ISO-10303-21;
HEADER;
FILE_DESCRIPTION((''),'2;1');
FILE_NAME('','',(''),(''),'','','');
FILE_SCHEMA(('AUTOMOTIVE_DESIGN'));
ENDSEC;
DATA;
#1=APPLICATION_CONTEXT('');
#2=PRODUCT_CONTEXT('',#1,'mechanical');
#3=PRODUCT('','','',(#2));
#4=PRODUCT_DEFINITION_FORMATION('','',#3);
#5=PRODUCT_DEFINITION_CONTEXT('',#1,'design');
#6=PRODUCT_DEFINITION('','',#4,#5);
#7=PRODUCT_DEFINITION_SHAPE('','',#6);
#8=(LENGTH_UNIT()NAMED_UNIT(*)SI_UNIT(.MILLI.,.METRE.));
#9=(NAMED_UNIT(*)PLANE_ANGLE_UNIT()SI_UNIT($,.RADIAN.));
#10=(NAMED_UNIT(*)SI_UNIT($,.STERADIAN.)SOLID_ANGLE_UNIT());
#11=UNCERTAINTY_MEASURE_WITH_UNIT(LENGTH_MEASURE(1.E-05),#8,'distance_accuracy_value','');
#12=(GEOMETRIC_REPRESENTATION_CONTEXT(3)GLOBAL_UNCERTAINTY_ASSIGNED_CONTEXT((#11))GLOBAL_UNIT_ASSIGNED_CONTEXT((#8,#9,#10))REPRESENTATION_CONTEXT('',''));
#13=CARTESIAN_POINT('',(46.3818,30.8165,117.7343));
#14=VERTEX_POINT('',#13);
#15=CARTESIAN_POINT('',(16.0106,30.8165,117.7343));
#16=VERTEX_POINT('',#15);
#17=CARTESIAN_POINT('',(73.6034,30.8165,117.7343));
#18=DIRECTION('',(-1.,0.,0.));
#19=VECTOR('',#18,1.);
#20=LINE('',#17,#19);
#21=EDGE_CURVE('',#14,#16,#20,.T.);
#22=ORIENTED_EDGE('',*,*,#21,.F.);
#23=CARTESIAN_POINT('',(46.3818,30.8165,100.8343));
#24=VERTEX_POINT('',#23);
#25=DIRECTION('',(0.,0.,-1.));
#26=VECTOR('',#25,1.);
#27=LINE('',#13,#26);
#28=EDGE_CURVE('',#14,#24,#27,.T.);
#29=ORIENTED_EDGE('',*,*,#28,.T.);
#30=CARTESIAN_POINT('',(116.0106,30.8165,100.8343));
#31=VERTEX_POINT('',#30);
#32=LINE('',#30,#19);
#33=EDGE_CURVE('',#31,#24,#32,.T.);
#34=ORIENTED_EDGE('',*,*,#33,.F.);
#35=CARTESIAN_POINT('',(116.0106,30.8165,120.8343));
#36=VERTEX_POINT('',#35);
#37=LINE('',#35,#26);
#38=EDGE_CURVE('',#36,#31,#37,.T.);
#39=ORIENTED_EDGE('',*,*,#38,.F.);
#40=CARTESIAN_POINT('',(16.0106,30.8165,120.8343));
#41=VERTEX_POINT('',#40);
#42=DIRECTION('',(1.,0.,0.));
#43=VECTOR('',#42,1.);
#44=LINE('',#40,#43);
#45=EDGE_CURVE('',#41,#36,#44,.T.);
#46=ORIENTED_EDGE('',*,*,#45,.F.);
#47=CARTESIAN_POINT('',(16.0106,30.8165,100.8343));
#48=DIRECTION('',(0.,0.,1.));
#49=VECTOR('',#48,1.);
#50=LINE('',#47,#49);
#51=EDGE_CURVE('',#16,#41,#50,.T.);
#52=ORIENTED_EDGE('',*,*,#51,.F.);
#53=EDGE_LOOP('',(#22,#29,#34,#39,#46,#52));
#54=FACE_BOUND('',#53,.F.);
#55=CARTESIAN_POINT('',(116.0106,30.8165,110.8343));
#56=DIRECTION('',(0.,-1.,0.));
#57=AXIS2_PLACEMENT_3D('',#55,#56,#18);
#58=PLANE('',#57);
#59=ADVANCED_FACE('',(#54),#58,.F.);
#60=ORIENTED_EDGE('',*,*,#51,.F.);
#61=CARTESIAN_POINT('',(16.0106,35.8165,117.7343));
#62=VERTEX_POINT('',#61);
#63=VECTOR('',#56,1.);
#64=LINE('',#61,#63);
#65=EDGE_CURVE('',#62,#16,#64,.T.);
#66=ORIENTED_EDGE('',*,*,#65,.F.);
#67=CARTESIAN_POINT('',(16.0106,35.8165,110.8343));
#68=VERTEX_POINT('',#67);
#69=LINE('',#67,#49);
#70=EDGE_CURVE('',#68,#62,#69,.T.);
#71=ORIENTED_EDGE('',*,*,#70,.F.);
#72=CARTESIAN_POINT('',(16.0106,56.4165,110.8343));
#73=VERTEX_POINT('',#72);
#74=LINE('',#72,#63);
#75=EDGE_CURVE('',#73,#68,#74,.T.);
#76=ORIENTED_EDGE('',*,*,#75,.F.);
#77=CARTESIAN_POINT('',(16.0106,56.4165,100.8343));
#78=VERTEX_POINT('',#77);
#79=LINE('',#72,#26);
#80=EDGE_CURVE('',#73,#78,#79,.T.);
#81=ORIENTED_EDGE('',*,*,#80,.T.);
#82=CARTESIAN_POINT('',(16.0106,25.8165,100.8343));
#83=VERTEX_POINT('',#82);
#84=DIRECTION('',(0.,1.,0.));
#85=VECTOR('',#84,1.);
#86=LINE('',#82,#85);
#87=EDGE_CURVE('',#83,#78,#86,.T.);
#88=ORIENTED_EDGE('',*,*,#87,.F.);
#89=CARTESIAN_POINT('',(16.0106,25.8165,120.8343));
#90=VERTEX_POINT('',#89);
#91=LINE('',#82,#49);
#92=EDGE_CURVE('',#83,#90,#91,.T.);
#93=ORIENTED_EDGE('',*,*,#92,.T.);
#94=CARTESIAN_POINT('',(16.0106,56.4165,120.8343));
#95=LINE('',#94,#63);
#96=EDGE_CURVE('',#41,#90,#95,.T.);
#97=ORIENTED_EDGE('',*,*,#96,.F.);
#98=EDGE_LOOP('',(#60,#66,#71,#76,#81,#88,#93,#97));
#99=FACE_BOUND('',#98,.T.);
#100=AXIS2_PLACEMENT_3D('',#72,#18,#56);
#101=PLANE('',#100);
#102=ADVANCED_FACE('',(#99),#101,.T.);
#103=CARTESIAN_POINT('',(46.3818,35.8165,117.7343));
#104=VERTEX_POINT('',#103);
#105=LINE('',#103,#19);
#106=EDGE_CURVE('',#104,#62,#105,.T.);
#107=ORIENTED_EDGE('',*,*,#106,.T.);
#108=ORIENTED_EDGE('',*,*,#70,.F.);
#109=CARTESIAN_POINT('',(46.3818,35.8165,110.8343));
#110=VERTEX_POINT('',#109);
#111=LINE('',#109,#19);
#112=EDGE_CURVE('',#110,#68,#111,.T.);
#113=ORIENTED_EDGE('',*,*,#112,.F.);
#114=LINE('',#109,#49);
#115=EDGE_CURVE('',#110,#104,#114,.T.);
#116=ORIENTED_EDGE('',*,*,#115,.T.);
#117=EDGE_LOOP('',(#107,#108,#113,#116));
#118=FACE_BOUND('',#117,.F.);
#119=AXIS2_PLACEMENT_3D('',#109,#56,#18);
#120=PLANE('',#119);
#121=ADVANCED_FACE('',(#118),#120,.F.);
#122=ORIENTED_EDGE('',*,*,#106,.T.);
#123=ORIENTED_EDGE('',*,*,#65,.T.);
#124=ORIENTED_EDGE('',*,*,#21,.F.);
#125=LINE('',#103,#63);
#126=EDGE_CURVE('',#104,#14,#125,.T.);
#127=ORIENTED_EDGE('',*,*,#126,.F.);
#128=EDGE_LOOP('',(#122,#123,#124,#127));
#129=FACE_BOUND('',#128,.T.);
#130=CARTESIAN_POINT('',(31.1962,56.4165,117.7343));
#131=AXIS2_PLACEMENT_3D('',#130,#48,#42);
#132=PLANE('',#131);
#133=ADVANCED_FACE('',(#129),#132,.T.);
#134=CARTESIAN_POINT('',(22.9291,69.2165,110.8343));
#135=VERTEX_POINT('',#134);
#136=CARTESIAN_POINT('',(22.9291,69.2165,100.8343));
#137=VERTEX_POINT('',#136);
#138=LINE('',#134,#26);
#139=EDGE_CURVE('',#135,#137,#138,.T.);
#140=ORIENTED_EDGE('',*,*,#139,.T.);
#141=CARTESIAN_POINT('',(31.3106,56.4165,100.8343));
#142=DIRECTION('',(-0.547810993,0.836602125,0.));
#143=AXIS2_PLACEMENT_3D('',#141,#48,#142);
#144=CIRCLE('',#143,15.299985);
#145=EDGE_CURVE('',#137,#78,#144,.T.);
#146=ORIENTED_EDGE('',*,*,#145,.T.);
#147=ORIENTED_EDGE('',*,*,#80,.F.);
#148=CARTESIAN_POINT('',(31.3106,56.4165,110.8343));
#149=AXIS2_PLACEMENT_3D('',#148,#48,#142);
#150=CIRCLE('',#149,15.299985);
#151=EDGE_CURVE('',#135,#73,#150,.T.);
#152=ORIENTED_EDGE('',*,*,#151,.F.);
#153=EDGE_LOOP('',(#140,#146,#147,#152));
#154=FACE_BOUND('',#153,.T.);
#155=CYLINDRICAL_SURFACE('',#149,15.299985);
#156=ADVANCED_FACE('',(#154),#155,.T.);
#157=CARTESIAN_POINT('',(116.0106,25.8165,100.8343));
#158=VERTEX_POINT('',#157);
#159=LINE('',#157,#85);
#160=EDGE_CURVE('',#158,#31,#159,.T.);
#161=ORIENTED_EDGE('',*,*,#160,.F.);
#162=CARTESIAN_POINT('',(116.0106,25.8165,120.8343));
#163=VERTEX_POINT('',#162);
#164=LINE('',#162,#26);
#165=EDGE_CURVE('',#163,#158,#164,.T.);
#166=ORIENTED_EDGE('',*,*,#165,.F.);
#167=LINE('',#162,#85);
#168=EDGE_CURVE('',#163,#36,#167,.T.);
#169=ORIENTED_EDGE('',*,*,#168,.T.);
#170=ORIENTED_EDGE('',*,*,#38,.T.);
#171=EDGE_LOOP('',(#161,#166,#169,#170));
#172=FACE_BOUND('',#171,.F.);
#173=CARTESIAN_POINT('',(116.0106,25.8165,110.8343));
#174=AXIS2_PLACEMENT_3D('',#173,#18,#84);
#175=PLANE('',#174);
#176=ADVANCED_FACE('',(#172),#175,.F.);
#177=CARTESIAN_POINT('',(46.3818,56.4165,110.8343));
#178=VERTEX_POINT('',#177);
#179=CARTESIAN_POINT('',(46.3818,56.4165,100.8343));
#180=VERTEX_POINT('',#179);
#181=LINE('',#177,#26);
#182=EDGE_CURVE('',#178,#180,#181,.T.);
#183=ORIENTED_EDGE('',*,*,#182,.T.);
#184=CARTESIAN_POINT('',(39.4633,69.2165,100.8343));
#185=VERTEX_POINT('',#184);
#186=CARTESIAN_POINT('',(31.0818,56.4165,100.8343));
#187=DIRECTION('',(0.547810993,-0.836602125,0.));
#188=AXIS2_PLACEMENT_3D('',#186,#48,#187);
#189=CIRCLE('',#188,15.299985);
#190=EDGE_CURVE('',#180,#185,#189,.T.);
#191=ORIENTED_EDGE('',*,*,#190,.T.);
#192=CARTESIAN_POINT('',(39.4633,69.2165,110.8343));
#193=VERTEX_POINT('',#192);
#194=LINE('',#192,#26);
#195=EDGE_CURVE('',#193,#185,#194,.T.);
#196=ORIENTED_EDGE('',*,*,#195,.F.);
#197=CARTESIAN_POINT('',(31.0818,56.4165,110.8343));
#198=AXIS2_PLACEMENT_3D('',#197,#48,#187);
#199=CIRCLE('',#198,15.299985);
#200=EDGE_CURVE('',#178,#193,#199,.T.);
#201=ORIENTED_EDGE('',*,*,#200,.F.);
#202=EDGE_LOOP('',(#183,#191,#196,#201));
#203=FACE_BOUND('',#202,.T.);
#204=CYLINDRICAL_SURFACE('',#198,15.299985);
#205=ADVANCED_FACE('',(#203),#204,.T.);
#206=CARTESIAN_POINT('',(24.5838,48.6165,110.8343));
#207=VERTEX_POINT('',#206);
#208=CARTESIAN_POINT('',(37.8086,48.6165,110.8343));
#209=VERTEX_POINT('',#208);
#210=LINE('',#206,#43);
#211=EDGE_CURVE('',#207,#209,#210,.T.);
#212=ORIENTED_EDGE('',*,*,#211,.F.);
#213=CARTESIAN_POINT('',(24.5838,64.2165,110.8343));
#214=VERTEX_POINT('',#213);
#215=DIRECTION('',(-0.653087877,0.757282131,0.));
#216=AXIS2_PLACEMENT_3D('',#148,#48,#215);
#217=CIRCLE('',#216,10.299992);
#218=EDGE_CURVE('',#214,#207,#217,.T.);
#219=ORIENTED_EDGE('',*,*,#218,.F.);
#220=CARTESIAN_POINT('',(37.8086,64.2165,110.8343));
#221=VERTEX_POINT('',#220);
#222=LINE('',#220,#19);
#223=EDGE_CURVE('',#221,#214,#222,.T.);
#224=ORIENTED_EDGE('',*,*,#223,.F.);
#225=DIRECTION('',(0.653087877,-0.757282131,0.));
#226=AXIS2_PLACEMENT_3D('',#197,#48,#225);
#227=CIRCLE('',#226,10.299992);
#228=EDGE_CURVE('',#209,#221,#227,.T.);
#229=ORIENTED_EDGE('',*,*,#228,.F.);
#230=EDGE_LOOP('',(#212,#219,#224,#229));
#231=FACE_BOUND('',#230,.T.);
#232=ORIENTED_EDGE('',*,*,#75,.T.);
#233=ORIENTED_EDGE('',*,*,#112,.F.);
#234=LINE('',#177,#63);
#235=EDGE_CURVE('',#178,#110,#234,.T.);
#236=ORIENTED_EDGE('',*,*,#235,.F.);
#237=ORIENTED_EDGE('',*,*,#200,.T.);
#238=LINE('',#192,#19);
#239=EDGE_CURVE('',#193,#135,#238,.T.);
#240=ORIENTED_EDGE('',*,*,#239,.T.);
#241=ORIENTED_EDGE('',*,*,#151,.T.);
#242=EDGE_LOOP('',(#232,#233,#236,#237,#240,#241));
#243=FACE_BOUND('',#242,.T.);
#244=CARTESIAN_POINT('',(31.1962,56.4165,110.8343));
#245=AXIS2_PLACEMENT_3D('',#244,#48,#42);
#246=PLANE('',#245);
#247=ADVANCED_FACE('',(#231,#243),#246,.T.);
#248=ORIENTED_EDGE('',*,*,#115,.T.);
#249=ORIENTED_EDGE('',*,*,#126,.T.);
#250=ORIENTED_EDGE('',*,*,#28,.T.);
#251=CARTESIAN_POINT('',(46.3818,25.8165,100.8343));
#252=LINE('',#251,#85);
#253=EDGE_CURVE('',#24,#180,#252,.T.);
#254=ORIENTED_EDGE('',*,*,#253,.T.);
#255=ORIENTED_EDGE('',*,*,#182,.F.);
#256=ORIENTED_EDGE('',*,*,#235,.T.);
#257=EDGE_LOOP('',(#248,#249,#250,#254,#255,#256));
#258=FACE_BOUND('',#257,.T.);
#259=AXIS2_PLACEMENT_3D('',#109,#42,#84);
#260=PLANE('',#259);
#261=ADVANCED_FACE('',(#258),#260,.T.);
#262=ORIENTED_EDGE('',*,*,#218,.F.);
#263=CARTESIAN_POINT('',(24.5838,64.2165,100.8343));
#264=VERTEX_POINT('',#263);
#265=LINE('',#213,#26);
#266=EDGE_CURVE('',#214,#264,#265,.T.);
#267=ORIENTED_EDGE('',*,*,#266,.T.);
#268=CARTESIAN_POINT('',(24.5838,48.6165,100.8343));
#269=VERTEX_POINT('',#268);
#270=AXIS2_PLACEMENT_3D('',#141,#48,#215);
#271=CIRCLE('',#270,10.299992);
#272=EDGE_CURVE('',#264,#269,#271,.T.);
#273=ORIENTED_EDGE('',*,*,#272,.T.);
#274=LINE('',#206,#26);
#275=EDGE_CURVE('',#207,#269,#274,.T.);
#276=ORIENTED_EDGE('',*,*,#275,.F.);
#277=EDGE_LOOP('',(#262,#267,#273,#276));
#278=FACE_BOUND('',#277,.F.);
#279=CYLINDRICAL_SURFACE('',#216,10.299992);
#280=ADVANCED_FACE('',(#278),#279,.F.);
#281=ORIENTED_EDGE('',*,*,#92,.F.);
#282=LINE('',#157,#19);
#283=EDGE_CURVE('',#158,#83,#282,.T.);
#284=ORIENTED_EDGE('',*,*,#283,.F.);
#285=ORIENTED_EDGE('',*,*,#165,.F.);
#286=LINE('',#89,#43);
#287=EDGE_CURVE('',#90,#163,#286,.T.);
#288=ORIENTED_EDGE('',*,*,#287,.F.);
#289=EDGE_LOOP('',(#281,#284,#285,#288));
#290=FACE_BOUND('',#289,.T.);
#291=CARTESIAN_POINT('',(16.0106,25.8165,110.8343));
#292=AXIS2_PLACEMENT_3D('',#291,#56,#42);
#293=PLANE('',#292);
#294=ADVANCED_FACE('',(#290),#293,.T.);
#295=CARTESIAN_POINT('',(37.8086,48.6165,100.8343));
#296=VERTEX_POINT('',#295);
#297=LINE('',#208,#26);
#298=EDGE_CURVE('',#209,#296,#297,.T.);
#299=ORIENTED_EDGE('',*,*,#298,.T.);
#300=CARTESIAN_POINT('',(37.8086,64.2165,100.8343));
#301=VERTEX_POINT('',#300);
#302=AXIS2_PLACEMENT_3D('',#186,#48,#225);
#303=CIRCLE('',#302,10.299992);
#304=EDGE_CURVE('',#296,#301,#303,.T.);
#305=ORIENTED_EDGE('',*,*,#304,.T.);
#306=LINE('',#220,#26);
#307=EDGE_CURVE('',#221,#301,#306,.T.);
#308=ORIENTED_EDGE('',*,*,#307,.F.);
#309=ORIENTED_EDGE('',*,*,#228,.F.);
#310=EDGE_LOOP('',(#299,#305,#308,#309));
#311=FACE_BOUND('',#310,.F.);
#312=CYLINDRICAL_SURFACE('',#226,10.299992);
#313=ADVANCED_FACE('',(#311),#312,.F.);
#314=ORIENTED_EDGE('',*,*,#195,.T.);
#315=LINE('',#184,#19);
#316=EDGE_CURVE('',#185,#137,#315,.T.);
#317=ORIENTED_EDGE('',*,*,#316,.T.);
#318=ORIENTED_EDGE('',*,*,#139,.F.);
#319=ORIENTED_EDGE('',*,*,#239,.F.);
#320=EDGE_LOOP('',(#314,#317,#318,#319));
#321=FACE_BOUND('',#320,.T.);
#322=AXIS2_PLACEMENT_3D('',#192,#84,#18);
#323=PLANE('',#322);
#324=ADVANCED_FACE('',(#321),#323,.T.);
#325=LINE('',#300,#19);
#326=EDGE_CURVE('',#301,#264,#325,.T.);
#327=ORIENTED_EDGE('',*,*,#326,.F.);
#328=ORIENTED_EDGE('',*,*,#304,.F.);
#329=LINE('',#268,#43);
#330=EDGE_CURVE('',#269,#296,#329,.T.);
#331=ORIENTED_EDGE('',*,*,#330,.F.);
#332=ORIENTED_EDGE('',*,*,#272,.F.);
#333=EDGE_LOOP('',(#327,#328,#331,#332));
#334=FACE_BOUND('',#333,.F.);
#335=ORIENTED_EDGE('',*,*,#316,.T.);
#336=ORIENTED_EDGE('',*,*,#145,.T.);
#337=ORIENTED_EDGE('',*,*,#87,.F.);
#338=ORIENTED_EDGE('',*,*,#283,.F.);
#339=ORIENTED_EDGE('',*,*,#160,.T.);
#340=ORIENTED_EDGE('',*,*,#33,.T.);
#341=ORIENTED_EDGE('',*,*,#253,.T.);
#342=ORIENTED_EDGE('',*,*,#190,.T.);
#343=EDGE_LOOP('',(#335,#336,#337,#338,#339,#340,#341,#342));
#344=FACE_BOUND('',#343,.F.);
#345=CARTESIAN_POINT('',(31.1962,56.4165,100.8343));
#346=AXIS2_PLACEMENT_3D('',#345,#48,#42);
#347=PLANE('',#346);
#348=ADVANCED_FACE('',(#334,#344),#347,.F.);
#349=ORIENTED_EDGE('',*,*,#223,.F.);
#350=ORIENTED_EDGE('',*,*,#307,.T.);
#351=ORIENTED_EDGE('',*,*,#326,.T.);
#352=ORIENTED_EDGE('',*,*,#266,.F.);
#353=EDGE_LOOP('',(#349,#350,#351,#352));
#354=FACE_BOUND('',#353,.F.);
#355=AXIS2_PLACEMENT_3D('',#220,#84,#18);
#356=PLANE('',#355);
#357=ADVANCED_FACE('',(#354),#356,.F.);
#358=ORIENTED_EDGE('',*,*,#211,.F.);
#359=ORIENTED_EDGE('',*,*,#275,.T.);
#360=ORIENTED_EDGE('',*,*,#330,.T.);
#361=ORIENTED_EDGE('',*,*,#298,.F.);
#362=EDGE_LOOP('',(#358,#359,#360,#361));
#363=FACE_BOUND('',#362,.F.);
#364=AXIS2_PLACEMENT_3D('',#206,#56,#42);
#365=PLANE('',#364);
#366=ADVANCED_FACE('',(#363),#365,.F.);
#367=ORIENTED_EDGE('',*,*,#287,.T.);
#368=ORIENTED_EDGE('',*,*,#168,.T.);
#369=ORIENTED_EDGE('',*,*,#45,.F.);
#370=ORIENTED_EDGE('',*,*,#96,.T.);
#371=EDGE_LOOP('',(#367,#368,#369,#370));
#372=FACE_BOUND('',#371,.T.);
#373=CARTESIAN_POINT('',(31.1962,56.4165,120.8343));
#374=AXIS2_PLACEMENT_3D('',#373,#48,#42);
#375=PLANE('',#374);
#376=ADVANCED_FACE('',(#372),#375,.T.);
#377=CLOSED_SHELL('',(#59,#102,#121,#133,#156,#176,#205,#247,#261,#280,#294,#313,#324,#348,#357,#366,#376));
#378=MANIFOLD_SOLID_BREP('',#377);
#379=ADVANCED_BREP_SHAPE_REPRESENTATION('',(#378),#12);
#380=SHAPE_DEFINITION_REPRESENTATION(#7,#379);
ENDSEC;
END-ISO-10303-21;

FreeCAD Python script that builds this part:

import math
import FreeCAD as App
import Part
import Sketcher
Q = App.Units.Quantity

doc = App.newDocument("Part")
body = doc.addObject("PartDesign::Body", "Body")

sketch1 = body.newObject("Sketcher::SketchObject", "Sketch")
sketch1.AttachmentSupport = (doc.getObject("XY_Plane"), [""])
sketch1.MapMode = "FlatFace"
sketch1.AttachmentOffset = App.Placement(App.Vector(0, 0, 110.8343), App.Rotation())
sketch1.addGeometry([
    Part.ArcOfCircle(Part.Circle(App.Vector(31, 56, 0), App.Vector(0, 0, 1), 15), math.radians(0), math.radians(57)),
    Part.LineSegment(App.Vector(39, 69, 0), App.Vector(23, 69, 0)),
    Part.ArcOfCircle(Part.Circle(App.Vector(31, 56, 0), App.Vector(0, 0, 1), 15), math.radians(123), math.radians(180)),
    Part.LineSegment(App.Vector(16, 56, 0), App.Vector(16, 26, 0)),
    Part.LineSegment(App.Vector(16, 26, 0), App.Vector(46, 26, 0)),
    Part.LineSegment(App.Vector(46, 26, 0), App.Vector(46, 56, 0)),
    Part.LineSegment(App.Vector(25, 64, 0), App.Vector(38, 64, 0)),
    Part.ArcOfCircle(Part.Circle(App.Vector(31, 56, 0), App.Vector(0, 0, 1), 10), math.radians(-49), math.radians(49)),
    Part.LineSegment(App.Vector(38, 49, 0), App.Vector(25, 49, 0)),
    Part.ArcOfCircle(Part.Circle(App.Vector(31, 56, 0), App.Vector(0, 0, 1), 10), math.radians(131), math.radians(229)),
], False)
sketch1.addConstraint([
    Sketcher.Constraint("Coincident", 0, 2, 1, 1),
    Sketcher.Constraint("Coincident", 1, 2, 2, 1),
    Sketcher.Constraint("Tangent", 2, 2, 3, 1),
    Sketcher.Constraint("Coincident", 3, 2, 4, 1),
    Sketcher.Constraint("Coincident", 4, 2, 5, 1),
    Sketcher.Constraint("Tangent", 5, 2, 0, 1),
    Sketcher.Constraint("Coincident", 6, 2, 7, 2),
    Sketcher.Constraint("Coincident", 7, 1, 8, 1),
    Sketcher.Constraint("Coincident", 8, 2, 9, 2),
    Sketcher.Constraint("Coincident", 9, 1, 6, 1),
    Sketcher.Constraint("Horizontal", 1),
    Sketcher.Constraint("Vertical", 3),
    Sketcher.Constraint("Horizontal", 4),
    Sketcher.Constraint("Vertical", 5),
    Sketcher.Constraint("Horizontal", 6),
    Sketcher.Constraint("Horizontal", 8),
    Sketcher.Constraint("Coincident", 7, 3, 0, 3),
    Sketcher.Constraint("Coincident", 9, 3, 2, 3),
    Sketcher.Constraint("Equal", 0, 2),
    Sketcher.Constraint("Equal", 7, 9),
    Sketcher.Constraint("Horizontal", 0, 3, 2, 3),
    Sketcher.Constraint("Vertical", 6, 2, 7, 1),
    Sketcher.Constraint("Radius", 0, Q("15.3 mm")),
    Sketcher.Constraint("DistanceY", 3, 2, 3, 1, Q("30.6 mm")),
    Sketcher.Constraint("DistanceY", 6, 2, 0, 2, Q("5 mm")),
    Sketcher.Constraint("Radius", 7, Q("10.3 mm")),
    Sketcher.Constraint("DistanceY", 2, 3, 0, 2, Q("12.8 mm")),
    Sketcher.Constraint("DistanceX", 1, 2, 1, 1, Q("16.5342 mm")),
    Sketcher.Constraint("DistanceX", -1, 1, 1, 2, Q("22.929 mm")),
    Sketcher.Constraint("DistanceY", -1, 1, 0, 3, Q("56.4165 mm")),
])
pad1 = body.newObject("PartDesign::Pad", "Pad")
pad1.Profile = sketch1
pad1.Length = 10
pad1.Reversed = True

sketch2 = body.newObject("Sketcher::SketchObject", "Sketch001")
sketch2.AttachmentSupport = (doc.getObject("XY_Plane"), [""])
sketch2.MapMode = "FlatFace"
sketch2.AttachmentOffset = App.Placement(App.Vector(0, 0, 110.8343), App.Rotation())
sketch2.addGeometry([
    Part.LineSegment(App.Vector(116, 31, 0), App.Vector(16, 31, 0)),
    Part.LineSegment(App.Vector(16, 31, 0), App.Vector(16, 26, 0)),
    Part.LineSegment(App.Vector(16, 26, 0), App.Vector(116, 26, 0)),
    Part.LineSegment(App.Vector(116, 26, 0), App.Vector(116, 31, 0)),
], False)
sketch2.addConstraint([
    Sketcher.Constraint("Coincident", 0, 2, 1, 1),
    Sketcher.Constraint("Coincident", 1, 2, 2, 1),
    Sketcher.Constraint("Coincident", 2, 2, 3, 1),
    Sketcher.Constraint("Coincident", 3, 2, 0, 1),
    Sketcher.Constraint("Horizontal", 0),
    Sketcher.Constraint("Vertical", 1),
    Sketcher.Constraint("Horizontal", 2),
    Sketcher.Constraint("Vertical", 3),
    Sketcher.Constraint("DistanceX", 0, 2, 0, 1, Q("100 mm")),
    Sketcher.Constraint("DistanceY", 1, 2, 1, 1, Q("5 mm")),
    Sketcher.Constraint("DistanceX", -1, 1, 0, 2, Q("16.0106 mm")),
    Sketcher.Constraint("DistanceY", -1, 1, 0, 2, Q("30.8165 mm")),
])
pad2 = body.newObject("PartDesign::Pad", "Pad001")
pad2.Profile = sketch2
pad2.Type = "TwoLengths"
pad2.Length = 10
pad2.Length2 = 10

sketch3 = body.newObject("Sketcher::SketchObject", "Sketch002")
sketch3.AttachmentSupport = (doc.getObject("XY_Plane"), [""])
sketch3.MapMode = "FlatFace"
sketch3.AttachmentOffset = App.Placement(App.Vector(0, 0, 110.8343), App.Rotation())
sketch3.addGeometry([
    Part.LineSegment(App.Vector(46, 36, 0), App.Vector(16, 36, 0)),
    Part.LineSegment(App.Vector(16, 36, 0), App.Vector(16, 26, 0)),
    Part.LineSegment(App.Vector(16, 26, 0), App.Vector(46, 26, 0)),
    Part.LineSegment(App.Vector(46, 26, 0), App.Vector(46, 36, 0)),
], False)
sketch3.addConstraint([
    Sketcher.Constraint("Coincident", 0, 2, 1, 1),
    Sketcher.Constraint("Coincident", 1, 2, 2, 1),
    Sketcher.Constraint("Coincident", 2, 2, 3, 1),
    Sketcher.Constraint("Coincident", 3, 2, 0, 1),
    Sketcher.Constraint("Horizontal", 0),
    Sketcher.Constraint("Vertical", 1),
    Sketcher.Constraint("Horizontal", 2),
    Sketcher.Constraint("Vertical", 3),
    Sketcher.Constraint("DistanceY", 1, 2, 1, 1, Q("10 mm")),
    Sketcher.Constraint("DistanceX", 0, 2, 0, 1, Q("30.3712 mm")),
    Sketcher.Constraint("DistanceX", -1, 1, 0, 2, Q("16.0106 mm")),
    Sketcher.Constraint("DistanceY", -1, 1, 0, 2, Q("35.8165 mm")),
])
pad3 = body.newObject("PartDesign::Pad", "Pad002")
pad3.Profile = sketch3
pad3.Length = 6.9

doc.recompute()
